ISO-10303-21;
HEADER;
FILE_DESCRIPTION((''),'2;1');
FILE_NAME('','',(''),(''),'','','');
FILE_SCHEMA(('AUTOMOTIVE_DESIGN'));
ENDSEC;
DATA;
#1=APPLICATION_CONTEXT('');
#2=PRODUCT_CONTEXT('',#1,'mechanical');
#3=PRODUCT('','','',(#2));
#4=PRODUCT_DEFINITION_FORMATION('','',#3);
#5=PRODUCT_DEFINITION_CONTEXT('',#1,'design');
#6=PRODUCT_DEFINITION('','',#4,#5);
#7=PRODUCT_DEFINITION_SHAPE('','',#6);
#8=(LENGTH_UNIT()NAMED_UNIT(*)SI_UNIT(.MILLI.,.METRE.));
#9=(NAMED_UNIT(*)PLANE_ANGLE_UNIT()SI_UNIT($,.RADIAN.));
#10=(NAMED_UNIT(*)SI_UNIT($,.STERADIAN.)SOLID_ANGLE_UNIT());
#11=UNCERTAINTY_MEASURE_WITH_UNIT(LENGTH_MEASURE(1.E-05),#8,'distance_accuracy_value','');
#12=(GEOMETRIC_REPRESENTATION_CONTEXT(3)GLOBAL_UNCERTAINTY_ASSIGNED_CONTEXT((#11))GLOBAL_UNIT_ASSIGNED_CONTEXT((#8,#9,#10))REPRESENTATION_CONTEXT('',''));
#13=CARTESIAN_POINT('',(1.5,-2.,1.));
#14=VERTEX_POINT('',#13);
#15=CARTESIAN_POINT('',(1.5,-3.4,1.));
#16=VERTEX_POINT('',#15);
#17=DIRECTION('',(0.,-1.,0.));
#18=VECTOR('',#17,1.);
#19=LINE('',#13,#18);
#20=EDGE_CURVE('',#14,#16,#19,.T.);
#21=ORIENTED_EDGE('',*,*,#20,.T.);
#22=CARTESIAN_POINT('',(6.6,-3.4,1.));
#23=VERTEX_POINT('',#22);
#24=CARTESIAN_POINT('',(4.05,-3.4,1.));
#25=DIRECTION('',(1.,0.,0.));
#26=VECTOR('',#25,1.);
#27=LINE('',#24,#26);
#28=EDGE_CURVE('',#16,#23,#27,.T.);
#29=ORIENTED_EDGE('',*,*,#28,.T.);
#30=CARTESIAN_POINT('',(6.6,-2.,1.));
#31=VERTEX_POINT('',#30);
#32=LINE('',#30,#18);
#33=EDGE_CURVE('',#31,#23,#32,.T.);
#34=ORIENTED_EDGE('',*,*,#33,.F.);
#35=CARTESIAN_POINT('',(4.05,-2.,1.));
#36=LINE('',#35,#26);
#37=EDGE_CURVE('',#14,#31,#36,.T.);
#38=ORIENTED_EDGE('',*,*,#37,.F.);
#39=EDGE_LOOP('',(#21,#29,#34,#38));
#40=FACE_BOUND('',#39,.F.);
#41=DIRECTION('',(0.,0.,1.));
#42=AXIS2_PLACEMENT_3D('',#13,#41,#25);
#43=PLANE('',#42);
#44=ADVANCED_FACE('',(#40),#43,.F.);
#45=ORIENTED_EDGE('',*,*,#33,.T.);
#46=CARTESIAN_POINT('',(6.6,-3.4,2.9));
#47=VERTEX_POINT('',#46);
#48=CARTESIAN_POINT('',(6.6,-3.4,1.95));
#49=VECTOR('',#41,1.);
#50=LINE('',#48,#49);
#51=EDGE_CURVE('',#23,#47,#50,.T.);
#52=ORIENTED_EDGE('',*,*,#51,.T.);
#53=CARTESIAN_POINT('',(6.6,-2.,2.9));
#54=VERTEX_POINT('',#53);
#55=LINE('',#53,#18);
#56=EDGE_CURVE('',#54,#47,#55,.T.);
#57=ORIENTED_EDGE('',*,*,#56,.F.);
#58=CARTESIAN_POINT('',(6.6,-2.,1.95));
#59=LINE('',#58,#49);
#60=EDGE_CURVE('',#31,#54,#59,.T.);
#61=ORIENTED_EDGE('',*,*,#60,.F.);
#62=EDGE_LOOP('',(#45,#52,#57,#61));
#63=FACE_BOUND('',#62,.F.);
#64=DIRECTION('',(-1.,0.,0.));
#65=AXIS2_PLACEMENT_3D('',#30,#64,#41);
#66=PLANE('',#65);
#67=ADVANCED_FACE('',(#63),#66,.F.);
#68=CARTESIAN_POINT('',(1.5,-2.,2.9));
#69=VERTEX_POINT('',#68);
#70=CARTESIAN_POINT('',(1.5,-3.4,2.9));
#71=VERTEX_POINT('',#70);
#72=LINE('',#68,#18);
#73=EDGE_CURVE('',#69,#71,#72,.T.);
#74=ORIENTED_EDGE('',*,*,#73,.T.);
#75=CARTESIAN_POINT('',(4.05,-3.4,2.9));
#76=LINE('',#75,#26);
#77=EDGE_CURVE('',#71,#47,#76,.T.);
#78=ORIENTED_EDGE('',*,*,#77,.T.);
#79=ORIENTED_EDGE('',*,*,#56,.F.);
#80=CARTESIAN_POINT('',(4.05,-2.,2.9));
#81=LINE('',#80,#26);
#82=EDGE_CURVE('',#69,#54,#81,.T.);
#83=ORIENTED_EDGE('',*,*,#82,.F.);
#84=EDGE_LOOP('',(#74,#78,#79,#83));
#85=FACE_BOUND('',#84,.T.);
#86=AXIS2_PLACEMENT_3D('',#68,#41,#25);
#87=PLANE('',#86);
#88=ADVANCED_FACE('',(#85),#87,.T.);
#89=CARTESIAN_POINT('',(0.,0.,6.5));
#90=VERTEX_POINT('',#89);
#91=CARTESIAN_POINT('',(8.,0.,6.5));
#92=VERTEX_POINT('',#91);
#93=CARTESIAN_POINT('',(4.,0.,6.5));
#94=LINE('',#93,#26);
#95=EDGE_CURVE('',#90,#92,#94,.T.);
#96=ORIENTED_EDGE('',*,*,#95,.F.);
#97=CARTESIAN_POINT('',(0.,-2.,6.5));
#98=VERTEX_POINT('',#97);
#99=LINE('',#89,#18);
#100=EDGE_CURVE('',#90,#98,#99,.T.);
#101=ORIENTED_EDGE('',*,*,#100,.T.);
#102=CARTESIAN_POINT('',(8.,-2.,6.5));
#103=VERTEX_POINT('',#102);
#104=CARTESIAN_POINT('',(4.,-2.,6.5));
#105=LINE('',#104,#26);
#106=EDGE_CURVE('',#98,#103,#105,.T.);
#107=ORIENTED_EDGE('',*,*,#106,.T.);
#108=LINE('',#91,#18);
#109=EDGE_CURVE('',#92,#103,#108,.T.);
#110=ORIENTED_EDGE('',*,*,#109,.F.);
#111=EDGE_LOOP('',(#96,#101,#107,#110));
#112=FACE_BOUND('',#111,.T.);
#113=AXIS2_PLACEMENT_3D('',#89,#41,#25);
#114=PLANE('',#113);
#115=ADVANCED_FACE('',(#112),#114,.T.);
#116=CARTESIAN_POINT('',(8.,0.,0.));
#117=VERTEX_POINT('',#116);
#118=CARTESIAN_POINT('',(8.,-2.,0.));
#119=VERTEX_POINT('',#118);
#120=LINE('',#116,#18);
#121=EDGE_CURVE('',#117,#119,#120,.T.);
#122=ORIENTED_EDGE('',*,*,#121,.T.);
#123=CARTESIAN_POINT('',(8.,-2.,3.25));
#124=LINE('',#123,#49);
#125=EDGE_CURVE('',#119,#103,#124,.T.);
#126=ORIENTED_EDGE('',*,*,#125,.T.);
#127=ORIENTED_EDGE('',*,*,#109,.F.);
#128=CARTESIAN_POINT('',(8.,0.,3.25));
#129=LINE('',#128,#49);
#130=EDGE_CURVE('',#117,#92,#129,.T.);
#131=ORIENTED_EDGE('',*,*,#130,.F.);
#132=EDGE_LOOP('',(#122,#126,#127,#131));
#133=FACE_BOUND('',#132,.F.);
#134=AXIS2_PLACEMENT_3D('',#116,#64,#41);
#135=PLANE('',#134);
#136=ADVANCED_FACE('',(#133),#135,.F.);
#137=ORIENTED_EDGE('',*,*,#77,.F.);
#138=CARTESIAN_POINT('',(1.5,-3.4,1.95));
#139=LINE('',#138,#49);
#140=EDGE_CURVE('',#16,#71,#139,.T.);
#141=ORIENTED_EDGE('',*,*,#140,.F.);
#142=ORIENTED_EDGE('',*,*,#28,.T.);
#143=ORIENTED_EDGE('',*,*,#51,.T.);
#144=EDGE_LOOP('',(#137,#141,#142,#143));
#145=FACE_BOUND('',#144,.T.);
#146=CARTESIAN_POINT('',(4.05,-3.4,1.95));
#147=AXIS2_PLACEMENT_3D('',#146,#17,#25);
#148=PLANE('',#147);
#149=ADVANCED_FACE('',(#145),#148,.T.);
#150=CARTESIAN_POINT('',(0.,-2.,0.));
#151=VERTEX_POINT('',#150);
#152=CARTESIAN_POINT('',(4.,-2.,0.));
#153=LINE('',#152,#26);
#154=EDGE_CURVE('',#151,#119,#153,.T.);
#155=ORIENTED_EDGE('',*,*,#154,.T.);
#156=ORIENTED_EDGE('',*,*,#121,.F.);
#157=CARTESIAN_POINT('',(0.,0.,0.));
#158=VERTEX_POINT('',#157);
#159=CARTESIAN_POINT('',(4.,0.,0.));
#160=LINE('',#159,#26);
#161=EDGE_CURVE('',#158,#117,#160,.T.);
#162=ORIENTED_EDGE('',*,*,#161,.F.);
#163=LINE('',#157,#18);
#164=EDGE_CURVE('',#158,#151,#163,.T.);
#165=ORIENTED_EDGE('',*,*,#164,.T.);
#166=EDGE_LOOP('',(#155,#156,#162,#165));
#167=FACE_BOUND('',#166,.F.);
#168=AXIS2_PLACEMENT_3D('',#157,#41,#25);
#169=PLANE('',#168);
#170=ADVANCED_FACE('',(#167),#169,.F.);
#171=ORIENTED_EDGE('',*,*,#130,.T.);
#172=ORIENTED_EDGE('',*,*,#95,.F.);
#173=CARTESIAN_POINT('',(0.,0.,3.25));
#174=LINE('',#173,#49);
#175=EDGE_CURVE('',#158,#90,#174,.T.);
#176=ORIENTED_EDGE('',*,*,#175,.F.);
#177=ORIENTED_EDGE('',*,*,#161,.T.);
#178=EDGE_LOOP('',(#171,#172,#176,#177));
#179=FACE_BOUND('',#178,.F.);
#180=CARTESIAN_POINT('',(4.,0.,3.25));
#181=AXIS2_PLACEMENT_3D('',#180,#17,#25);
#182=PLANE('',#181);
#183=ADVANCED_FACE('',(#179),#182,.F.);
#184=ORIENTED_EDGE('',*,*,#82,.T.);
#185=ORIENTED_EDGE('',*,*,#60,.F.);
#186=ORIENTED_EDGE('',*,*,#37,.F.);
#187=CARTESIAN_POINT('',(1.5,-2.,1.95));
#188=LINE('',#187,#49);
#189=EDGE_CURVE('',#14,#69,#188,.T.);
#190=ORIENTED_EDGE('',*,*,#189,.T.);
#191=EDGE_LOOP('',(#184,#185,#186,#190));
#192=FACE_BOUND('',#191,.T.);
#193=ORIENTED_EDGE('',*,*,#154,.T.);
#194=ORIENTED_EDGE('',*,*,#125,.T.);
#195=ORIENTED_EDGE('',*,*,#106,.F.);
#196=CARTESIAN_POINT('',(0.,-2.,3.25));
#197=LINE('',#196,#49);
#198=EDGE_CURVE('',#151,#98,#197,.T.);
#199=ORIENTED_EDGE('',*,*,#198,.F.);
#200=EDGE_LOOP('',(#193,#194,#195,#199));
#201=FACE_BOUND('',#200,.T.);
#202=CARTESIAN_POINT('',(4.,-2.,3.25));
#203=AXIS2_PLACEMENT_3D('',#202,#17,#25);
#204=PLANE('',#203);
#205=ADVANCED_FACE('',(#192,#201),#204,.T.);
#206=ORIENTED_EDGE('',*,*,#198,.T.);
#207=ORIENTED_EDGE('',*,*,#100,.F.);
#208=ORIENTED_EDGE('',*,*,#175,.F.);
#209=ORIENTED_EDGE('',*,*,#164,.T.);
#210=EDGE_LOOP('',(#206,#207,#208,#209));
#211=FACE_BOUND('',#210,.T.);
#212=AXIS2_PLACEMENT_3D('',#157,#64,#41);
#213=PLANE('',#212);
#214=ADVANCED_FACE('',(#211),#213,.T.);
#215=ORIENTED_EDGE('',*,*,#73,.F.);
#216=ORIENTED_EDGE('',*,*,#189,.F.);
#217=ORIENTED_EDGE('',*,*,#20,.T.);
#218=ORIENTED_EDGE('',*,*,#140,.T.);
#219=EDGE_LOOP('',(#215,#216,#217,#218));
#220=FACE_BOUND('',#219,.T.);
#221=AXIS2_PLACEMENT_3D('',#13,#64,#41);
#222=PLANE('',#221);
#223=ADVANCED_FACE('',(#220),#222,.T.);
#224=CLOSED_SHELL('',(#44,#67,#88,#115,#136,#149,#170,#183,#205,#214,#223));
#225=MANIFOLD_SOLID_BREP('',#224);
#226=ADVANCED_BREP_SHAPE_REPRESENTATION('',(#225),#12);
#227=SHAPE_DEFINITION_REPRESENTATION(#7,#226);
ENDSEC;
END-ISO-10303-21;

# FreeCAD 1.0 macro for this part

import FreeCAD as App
import Part
import Sketcher

V = App.Vector


def add_polygon(sketch, points):
    """Adds a closed chain of lines whose ends are joined by coincident constraints."""
    first, n = sketch.GeometryCount, len(points)
    for a, b in zip(points, points[1:] + points[:1]):
        sketch.addGeometry(Part.LineSegment(App.Vector(*a, 0), App.Vector(*b, 0)), False)
    for i in range(n):
        sketch.addConstraint(Sketcher.Constraint("Coincident", first + i, 2, first + (i + 1) % n, 1))

doc = App.newDocument("Part")
body = doc.addObject("PartDesign::Body", "Body")

sketch1 = doc.addObject("Sketcher::SketchObject", "Sketch")
body.addObject(sketch1)
sketch1.AttachmentSupport = (doc.XZ_Plane, [""])
sketch1.MapMode = "FlatFace"
add_polygon(sketch1, [(0, 6), (0, 0), (8, 0), (8, 6)])
sketch1.addConstraint([
    Sketcher.Constraint("Vertical", 0),
    Sketcher.Constraint("Horizontal", 1),
    Sketcher.Constraint("Vertical", 2),
    Sketcher.Constraint("Horizontal", 3),
    Sketcher.Constraint("Coincident", 0, 2, -1, 1),
    Sketcher.Constraint("DistanceX", 1, 1, 1, 2, 8.0),
    Sketcher.Constraint("DistanceY", 0, 2, 0, 1, 6.5),
])
pad1 = doc.addObject("PartDesign::Pad", "Pad")
body.addObject(pad1)
pad1.Profile = sketch1
pad1.Length = 2

sketch2 = doc.addObject("Sketcher::SketchObject", "Sketch001")
body.addObject(sketch2)
sketch2.AttachmentSupport = (doc.XZ_Plane, [""])
sketch2.MapMode = "FlatFace"
sketch2.AttachmentOffset = App.Placement(V(0, 0, 2), App.Rotation())
add_polygon(sketch2, [(1.5, 2.9), (1.5, 1), (6.6, 1), (6.6, 2.9)])
sketch2.addConstraint([
    Sketcher.Constraint("Vertical", 0),
    Sketcher.Constraint("Horizontal", 1),
    Sketcher.Constraint("Vertical", 2),
    Sketcher.Constraint("Horizontal", 3),
    Sketcher.Constraint("DistanceX", 1, 1, 1, 2, 5.1),
    Sketcher.Constraint("DistanceY", 0, 2, 0, 1, 1.9),
    Sketcher.Constraint("DistanceY", -1, 1, 0, 2, 1.0),
    Sketcher.Constraint("DistanceX", -1, 1, 0, 2, 1.5),
])
pad2 = doc.addObject("PartDesign::Pad", "Pad001")
body.addObject(pad2)
pad2.Profile = sketch2
pad2.Length = 1.4

doc.recompute()
